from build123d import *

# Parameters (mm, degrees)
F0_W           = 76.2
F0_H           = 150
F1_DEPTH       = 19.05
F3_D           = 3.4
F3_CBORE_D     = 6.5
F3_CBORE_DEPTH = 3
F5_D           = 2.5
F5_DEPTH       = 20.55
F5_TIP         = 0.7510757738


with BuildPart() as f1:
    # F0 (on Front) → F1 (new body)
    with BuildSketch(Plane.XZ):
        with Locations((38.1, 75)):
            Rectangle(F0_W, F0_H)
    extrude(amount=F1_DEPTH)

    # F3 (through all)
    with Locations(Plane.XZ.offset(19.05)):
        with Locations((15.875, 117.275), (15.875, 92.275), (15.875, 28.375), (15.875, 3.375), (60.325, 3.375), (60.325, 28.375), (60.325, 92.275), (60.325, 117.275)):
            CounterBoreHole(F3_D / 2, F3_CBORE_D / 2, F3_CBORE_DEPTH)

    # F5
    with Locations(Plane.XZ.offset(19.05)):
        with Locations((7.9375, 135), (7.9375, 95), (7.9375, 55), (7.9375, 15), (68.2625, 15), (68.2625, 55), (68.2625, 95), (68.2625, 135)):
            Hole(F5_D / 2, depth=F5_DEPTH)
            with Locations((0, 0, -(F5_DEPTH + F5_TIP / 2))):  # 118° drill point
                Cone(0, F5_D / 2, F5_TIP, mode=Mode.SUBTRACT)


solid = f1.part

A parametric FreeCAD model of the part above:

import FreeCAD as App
import Part
import Sketcher
from FreeCAD import Vector


def add_polygon(sketch, points):
    """Adds a closed chain of lines whose ends are joined by coincident constraints."""
    first, n = sketch.GeometryCount, len(points)
    for a, b in zip(points, points[1:] + points[:1]):
        sketch.addGeometry(Part.LineSegment(App.Vector(*a, 0), App.Vector(*b, 0)), False)
    for i in range(n):
        sketch.addConstraint(Sketcher.Constraint("Coincident", first + i, 2, first + (i + 1) % n, 1))

doc = App.newDocument("Part")
body = doc.addObject("PartDesign::Body", "Body")

# Sketch on XZ plane
sketch1 = doc.addObject("Sketcher::SketchObject", "Sketch")
body.addObject(sketch1)
sketch1.AttachmentSupport = (doc.XZ_Plane, [""])
sketch1.MapMode = "FlatFace"
add_polygon(sketch1, [(0, 150), (0, 0), (76.2, 0), (76.2, 150)])  # lines 0-3
sketch1.addConstraint([
    Sketcher.Constraint("Vertical", 0),
    Sketcher.Constraint("Horizontal", 1),
    Sketcher.Constraint("Vertical", 2),
    Sketcher.Constraint("Horizontal", 3),
    Sketcher.Constraint("Coincident", 0, 2, -1, 1),
    Sketcher.Constraint("DistanceY", 0, 2, 0, 1, 150.0),
    Sketcher.Constraint("DistanceX", 1, 1, 1, 2, 76.2),
])
pad1 = doc.addObject("PartDesign::Pad", "Pad")
body.addObject(pad1)
pad1.Profile = sketch1
pad1.Length = 19.05

# Sketch on XZ plane
sketch2 = doc.addObject("Sketcher::SketchObject", "Sketch001")
body.addObject(sketch2)
sketch2.AttachmentSupport = (doc.XZ_Plane, [""])
sketch2.MapMode = "FlatFace"
sketch2.AttachmentOffset = App.Placement(Vector(0, 0, 19.05), App.Rotation())
sketch2.addGeometry([
    Part.Circle(Vector(15.875, 117.275, 0), Vector(0, 0, 1), 1.7),  # 0
    Part.Circle(Vector(15.875, 92.275, 0), Vector(0, 0, 1), 1.7),  # 1
    Part.Circle(Vector(15.875, 28.375, 0), Vector(0, 0, 1), 1.7),  # 2
    Part.Circle(Vector(15.875, 3.375, 0), Vector(0, 0, 1), 1.7),  # 3
    Part.Circle(Vector(60.325, 3.375, 0), Vector(0, 0, 1), 1.7),  # 4
    Part.Circle(Vector(60.325, 28.375, 0), Vector(0, 0, 1), 1.7),  # 5
    Part.Circle(Vector(60.325, 92.275, 0), Vector(0, 0, 1), 1.7),  # 6
    Part.Circle(Vector(60.325, 117.275, 0), Vector(0, 0, 1), 1.7),  # 7
], False)
sketch2.addConstraint([
    Sketcher.Constraint("Equal", 0, 1),
    Sketcher.Constraint("Equal", 1, 2),
    Sketcher.Constraint("Equal", 2, 3),
    Sketcher.Constraint("Equal", 3, 4),
    Sketcher.Constraint("Equal", 4, 5),
    Sketcher.Constraint("Equal", 5, 6),
    Sketcher.Constraint("Equal", 6, 7),
    Sketcher.Constraint("Horizontal", 3, 3, 4, 3),
    Sketcher.Constraint("Horizontal", 2, 3, 5, 3),
    Sketcher.Constraint("Horizontal", 1, 3, 6, 3),
    Sketcher.Constraint("Horizontal", 0, 3, 7, 3),
    Sketcher.Constraint("Vertical", 0, 3, 1, 3),
    Sketcher.Constraint("Vertical", 1, 3, 2, 3),
    Sketcher.Constraint("Vertical", 2, 3, 3, 3),
    Sketcher.Constraint("Vertical", 4, 3, 5, 3),
    Sketcher.Constraint("Vertical", 5, 3, 6, 3),
    Sketcher.Constraint("Vertical", 6, 3, 7, 3),
    Sketcher.Constraint("Diameter", 0, 3.4),
    Sketcher.Constraint("DistanceY", 1, 3, 0, 3, 25.0),
    Sketcher.Constraint("DistanceY", 3, 3, 2, 3, 25.0),
    Sketcher.Constraint("DistanceY", 2, 3, 1, 3, 63.9),
    Sketcher.Constraint("DistanceX", 3, 3, 4, 3, 44.45),
    Sketcher.Constraint("DistanceX", -1, 1, 0, 3, 15.875),
    Sketcher.Constraint("DistanceY", -1, 1, 0, 3, 117.275),
])
doc.recompute()
hole = doc.addObject("PartDesign::Hole", "Hole")
body.addObject(hole)
hole.Profile = sketch2
hole.ThreadType = "None"
hole.Diameter = 3.4
hole.DepthType = "ThroughAll"
hole.HoleCutType = "Counterbore"
hole.HoleCutDiameter = 6.5
hole.HoleCutDepth = 3

# Sketch on XZ plane
sketch3 = doc.addObject("Sketcher::SketchObject", "Sketch002")
body.addObject(sketch3)
sketch3.AttachmentSupport = (doc.XZ_Plane, [""])
sketch3.MapMode = "FlatFace"
sketch3.AttachmentOffset = App.Placement(Vector(0, 0, 19.05), App.Rotation())
sketch3.addGeometry([
    Part.Circle(Vector(7.9375, 135, 0), Vector(0, 0, 1), 1.25),  # 0
    Part.Circle(Vector(7.9375, 95, 0), Vector(0, 0, 1), 1.25),  # 1
    Part.Circle(Vector(7.9375, 55, 0), Vector(0, 0, 1), 1.25),  # 2
    Part.Circle(Vector(7.9375, 15, 0), Vector(0, 0, 1), 1.25),  # 3
    Part.Circle(Vector(68.2625, 15, 0), Vector(0, 0, 1), 1.25),  # 4
    Part.Circle(Vector(68.2625, 55, 0), Vector(0, 0, 1), 1.25),  # 5
    Part.Circle(Vector(68.2625, 95, 0), Vector(0, 0, 1), 1.25),  # 6
    Part.Circle(Vector(68.2625, 135, 0), Vector(0, 0, 1), 1.25),  # 7
], False)
sketch3.addConstraint([
    Sketcher.Constraint("Equal", 0, 1),
    Sketcher.Constraint("Equal", 1, 2),
    Sketcher.Constraint("Equal", 2, 3),
    Sketcher.Constraint("Equal", 3, 4),
    Sketcher.Constraint("Equal", 4, 5),
    Sketcher.Constraint("Equal", 5, 6),
    Sketcher.Constraint("Equal", 6, 7),
    Sketcher.Constraint("Horizontal", 3, 3, 4, 3),
    Sketcher.Constraint("Horizontal", 2, 3, 5, 3),
    Sketcher.Constraint("Horizontal", 1, 3, 6, 3),
    Sketcher.Constraint("Horizontal", 0, 3, 7, 3),
    Sketcher.Constraint("Vertical", 0, 3, 1, 3),
    Sketcher.Constraint("Vertical", 1, 3, 2, 3),
    Sketcher.Constraint("Vertical", 2, 3, 3, 3),
    Sketcher.Constraint("Vertical", 4, 3, 5, 3),
    Sketcher.Constraint("Vertical", 5, 3, 6, 3),
    Sketcher.Constraint("Vertical", 6, 3, 7, 3),
    Sketcher.Constraint("Diameter", 0, 2.5),
    Sketcher.Constraint("DistanceY", -1, 1, 0, 3, 135.0),
    Sketcher.Constraint("DistanceY", -1, 1, 1, 3, 95.0),
    Sketcher.Constraint("DistanceY", -1, 1, 2, 3, 55.0),
    Sketcher.Constraint("DistanceY", -1, 1, 3, 3, 15.0),
    Sketcher.Constraint("DistanceX", 3, 3, 4, 3, 60.325),
    Sketcher.Constraint("DistanceX", -1, 1, 0, 3, 7.9375),
])
doc.recompute()
hole2 = doc.addObject("PartDesign::Hole", "Hole001")
body.addObject(hole2)
hole2.Profile = sketch3
hole2.ThreadType = "None"
hole2.Diameter = 2.5
hole2.DepthType = "Dimension"
hole2.Depth = 20.55
hole2.DrillPoint = "Angled"
hole2.DrillPointAngle = 118

doc.recompute()
